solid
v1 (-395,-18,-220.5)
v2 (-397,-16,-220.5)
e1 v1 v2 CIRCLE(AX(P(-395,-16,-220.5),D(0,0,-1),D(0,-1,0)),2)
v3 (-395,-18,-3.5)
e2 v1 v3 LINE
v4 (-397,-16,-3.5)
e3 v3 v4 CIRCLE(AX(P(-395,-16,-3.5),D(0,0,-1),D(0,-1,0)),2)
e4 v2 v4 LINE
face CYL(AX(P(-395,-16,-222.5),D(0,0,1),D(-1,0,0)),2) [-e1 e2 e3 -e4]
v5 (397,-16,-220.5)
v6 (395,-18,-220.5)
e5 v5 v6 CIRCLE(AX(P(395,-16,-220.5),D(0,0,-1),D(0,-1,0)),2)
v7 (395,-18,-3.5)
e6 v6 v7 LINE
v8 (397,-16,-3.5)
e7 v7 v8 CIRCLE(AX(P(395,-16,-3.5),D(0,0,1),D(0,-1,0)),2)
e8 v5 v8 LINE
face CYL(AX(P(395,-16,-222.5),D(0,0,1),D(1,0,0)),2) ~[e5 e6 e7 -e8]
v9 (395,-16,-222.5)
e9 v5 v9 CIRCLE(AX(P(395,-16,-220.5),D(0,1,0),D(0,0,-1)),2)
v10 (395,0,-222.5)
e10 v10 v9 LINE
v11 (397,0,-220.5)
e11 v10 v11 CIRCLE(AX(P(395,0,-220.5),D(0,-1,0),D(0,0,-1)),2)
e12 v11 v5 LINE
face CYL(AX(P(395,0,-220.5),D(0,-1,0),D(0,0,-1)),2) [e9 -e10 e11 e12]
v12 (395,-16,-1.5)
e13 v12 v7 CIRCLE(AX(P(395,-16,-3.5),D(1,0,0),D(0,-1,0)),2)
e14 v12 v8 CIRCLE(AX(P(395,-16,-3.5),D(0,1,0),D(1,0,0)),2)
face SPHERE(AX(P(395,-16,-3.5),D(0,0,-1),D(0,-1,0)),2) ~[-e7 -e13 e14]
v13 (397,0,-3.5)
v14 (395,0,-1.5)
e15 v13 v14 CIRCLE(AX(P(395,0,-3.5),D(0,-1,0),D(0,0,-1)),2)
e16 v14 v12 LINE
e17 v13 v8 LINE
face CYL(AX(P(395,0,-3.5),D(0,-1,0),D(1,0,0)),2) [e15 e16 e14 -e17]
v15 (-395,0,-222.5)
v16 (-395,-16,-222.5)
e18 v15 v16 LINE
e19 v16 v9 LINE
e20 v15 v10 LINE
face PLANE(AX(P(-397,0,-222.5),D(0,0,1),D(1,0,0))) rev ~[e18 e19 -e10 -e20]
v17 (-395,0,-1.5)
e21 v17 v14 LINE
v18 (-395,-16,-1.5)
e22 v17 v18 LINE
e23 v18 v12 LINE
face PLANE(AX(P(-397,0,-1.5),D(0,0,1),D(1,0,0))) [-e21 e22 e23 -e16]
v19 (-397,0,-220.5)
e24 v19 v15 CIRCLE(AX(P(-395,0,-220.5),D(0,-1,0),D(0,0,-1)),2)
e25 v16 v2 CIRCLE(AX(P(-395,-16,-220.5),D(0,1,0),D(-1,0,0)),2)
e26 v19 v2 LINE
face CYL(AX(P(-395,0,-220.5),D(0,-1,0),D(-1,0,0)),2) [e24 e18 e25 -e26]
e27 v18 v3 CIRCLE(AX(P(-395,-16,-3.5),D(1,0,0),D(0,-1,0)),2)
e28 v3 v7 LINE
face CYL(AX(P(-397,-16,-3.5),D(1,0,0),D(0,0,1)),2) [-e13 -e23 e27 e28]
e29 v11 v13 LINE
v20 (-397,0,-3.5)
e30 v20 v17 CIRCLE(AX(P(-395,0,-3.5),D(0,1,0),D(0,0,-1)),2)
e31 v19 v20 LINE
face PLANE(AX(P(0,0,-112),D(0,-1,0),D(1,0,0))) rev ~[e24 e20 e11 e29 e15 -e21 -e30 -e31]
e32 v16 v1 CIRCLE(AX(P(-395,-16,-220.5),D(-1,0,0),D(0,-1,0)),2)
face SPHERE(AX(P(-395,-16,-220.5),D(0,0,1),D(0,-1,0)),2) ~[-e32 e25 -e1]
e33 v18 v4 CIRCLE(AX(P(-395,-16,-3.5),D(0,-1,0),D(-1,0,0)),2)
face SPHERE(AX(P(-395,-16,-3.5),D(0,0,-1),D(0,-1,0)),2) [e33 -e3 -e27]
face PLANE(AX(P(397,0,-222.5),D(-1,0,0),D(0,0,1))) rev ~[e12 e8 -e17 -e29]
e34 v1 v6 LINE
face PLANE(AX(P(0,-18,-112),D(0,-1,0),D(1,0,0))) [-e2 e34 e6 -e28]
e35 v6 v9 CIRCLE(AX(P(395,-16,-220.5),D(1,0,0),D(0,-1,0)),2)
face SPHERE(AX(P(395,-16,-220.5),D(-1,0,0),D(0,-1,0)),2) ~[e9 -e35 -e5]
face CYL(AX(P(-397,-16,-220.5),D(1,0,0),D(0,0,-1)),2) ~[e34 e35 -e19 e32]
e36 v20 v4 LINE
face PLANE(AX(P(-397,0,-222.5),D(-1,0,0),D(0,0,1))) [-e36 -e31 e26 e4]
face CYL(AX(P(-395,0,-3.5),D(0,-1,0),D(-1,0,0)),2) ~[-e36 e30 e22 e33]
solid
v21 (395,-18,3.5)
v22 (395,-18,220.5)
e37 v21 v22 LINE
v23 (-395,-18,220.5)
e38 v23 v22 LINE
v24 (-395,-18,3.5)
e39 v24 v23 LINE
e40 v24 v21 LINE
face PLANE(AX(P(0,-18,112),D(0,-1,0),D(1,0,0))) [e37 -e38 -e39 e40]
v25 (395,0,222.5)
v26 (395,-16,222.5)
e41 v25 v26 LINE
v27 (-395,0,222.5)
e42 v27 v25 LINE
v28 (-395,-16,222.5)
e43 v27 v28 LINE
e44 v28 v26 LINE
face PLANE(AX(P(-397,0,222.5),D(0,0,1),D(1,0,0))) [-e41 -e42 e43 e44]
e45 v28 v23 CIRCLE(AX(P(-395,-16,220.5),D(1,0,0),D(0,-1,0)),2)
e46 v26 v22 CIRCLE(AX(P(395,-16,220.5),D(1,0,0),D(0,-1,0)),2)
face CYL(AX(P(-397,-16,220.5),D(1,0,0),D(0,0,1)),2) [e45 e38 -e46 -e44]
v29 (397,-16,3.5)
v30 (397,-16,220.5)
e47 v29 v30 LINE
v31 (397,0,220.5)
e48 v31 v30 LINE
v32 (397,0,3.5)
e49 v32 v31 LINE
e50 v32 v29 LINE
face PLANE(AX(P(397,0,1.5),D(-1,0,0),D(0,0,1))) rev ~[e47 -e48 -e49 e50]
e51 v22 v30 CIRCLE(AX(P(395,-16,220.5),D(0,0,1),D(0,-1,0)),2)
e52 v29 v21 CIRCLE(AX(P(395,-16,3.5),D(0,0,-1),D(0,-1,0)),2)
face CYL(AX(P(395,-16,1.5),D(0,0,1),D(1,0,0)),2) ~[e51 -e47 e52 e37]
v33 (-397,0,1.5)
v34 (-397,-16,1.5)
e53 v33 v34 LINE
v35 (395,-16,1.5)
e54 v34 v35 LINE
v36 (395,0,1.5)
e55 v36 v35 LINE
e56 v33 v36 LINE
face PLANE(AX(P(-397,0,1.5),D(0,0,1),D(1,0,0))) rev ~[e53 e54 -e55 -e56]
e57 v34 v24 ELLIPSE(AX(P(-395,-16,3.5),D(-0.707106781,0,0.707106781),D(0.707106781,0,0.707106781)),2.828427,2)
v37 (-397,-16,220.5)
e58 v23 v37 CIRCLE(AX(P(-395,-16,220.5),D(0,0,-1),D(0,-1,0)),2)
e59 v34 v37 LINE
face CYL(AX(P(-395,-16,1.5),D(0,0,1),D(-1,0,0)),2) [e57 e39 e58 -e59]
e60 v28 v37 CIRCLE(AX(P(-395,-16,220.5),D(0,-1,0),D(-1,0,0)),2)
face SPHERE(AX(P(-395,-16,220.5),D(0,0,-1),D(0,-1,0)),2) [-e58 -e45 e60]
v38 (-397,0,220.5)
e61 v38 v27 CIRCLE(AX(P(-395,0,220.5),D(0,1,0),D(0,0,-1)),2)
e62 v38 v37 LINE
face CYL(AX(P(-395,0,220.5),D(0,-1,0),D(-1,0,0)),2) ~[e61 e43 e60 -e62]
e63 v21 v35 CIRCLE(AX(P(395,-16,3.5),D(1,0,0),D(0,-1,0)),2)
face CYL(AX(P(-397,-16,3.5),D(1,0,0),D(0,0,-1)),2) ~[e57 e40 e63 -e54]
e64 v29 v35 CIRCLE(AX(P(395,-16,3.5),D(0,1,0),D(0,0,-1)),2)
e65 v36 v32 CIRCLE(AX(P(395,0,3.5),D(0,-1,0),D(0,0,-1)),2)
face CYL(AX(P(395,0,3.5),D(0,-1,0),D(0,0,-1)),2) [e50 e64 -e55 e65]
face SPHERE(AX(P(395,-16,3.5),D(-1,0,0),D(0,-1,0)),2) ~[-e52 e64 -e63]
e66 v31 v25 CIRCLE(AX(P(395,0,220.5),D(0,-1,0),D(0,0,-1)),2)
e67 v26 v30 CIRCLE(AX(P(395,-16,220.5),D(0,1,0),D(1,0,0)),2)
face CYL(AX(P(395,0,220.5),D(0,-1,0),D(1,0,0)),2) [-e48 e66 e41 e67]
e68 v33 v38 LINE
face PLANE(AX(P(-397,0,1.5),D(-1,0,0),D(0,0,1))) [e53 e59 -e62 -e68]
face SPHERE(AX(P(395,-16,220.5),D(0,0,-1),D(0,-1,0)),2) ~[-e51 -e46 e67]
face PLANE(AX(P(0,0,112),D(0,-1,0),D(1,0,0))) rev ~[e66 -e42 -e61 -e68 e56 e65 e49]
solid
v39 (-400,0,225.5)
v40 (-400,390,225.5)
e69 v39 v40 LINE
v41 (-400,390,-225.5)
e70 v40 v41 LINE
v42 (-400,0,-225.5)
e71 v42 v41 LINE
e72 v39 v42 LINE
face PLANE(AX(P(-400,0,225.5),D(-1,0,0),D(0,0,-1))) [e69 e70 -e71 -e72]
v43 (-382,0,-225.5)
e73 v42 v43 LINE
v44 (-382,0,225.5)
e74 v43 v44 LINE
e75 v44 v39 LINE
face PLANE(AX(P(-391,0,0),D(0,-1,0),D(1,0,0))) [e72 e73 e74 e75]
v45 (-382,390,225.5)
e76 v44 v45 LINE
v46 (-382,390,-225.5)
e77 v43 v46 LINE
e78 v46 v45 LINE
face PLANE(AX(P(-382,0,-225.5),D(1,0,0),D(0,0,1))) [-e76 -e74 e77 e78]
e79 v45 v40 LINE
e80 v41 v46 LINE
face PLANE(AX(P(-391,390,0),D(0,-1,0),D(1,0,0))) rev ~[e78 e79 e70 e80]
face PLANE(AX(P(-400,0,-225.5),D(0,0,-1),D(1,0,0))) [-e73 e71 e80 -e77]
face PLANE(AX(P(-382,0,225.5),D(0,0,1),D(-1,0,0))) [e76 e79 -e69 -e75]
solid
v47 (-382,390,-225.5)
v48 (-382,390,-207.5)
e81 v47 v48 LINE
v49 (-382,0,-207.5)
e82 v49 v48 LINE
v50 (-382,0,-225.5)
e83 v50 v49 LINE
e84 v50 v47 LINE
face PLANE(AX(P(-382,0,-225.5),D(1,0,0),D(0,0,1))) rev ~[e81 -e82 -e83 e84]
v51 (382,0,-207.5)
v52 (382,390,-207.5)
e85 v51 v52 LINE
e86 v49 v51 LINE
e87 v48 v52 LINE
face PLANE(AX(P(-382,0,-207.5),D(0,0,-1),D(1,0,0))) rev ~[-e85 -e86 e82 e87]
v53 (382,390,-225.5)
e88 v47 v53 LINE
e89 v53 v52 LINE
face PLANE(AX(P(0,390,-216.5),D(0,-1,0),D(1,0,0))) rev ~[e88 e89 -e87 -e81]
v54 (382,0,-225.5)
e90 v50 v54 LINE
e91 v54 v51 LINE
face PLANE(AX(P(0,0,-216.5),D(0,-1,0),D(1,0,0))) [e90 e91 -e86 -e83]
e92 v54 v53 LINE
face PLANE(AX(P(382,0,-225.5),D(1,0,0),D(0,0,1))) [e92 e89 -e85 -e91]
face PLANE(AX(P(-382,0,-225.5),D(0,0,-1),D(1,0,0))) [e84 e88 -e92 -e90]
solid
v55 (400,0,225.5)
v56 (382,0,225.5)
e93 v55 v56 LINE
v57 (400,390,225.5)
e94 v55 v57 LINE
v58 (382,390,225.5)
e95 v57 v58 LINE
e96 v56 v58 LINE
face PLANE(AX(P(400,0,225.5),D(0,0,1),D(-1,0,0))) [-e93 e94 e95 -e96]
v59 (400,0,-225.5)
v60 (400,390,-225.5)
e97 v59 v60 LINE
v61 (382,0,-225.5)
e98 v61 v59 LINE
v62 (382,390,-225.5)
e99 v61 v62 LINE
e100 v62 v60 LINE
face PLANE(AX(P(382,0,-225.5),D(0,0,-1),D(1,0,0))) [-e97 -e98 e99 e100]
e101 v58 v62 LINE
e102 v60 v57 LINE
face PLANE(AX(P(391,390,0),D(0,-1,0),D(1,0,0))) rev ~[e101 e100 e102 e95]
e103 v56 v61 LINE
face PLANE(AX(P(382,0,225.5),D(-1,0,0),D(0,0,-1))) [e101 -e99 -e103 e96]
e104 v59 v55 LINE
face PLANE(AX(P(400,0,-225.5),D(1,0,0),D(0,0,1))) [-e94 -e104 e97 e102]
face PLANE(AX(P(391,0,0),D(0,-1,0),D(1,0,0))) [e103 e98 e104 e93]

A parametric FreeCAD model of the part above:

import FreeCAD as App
import Part
import Sketcher

V = App.Vector


def edges_at(feature, points):
    """Names of the edges that pass closest to the given points."""
    edges = feature.Shape.Edges
    near = lambda p: min(range(len(edges)), key=lambda i: edges[i].distToShape(Part.Vertex(*p))[0])
    return sorted({f"Edge{near(p) + 1}" for p in points})

doc = App.newDocument("Part")
body = doc.addObject("PartDesign::Body", "Body")
body.AllowCompound = True

sketch1 = body.newObject("Sketcher::SketchObject", "Sketch")
sketch1.AttachmentSupport = (doc.getObject("XZ_Plane"), [""])
sketch1.MapMode = "FlatFace"
sketch1.addGeometry([
    Part.LineSegment(V(-382, 226, 0), V(-400, 226, 0)),
    Part.LineSegment(V(-400, 226, 0), V(-400, -226, 0)),
    Part.LineSegment(V(-400, -226, 0), V(-382, -226, 0)),
    Part.LineSegment(V(-382, -226, 0), V(-382, 226, 0)),
    Part.LineSegment(V(400, -226, 0), V(400, 226, 0)),
    Part.LineSegment(V(400, 226, 0), V(382, 226, 0)),
    Part.LineSegment(V(382, 226, 0), V(382, -226, 0)),
    Part.LineSegment(V(382, -226, 0), V(400, -226, 0)),
], False)
sketch1.addConstraint([
    Sketcher.Constraint("Coincident", 0, 2, 1, 1),
    Sketcher.Constraint("Coincident", 1, 2, 2, 1),
    Sketcher.Constraint("Coincident", 2, 2, 3, 1),
    Sketcher.Constraint("Coincident", 3, 2, 0, 1),
    Sketcher.Constraint("Coincident", 4, 2, 5, 1),
    Sketcher.Constraint("Coincident", 5, 2, 6, 1),
    Sketcher.Constraint("Coincident", 6, 2, 7, 1),
    Sketcher.Constraint("Coincident", 7, 2, 4, 1),
    Sketcher.Constraint("Horizontal", 0),
    Sketcher.Constraint("Vertical", 1),
    Sketcher.Constraint("Horizontal", 2),
    Sketcher.Constraint("Vertical", 3),
    Sketcher.Constraint("Vertical", 4),
    Sketcher.Constraint("Horizontal", 5),
    Sketcher.Constraint("Vertical", 6),
    Sketcher.Constraint("Horizontal", 7),
    Sketcher.Constraint("Symmetric", 1, 2, 4, 2, -1, 1),
    Sketcher.Constraint("Symmetric", 3, 2, 6, 2, -1, 1),
    Sketcher.Constraint("Horizontal", 3, 2, 4, 2),
    Sketcher.Constraint("DistanceX", 0, 2, 0, 1, 18.0),
    Sketcher.Constraint("DistanceY", 1, 2, 1, 1, 451.0),
    Sketcher.Constraint("DistanceX", 0, 2, -1, 1, 400.0),
])
pad1 = body.newObject("PartDesign::Pad", "Pad")
pad1.Profile = sketch1
pad1.Length = 390
pad1.Reversed = True
body2 = doc.addObject("PartDesign::Body", "Body001")

sketch2 = body2.newObject("Sketcher::SketchObject", "Sketch001")
sketch2.AttachmentSupport = (doc.getObject("XZ_Plane001"), [""])
sketch2.MapMode = "FlatFace"
sketch2.addGeometry([
    Part.LineSegment(V(-382, -208, 0), V(-382, -226, 0)),
    Part.LineSegment(V(-382, -226, 0), V(382, -226, 0)),
    Part.LineSegment(V(382, -226, 0), V(382, -208, 0)),
    Part.LineSegment(V(382, -208, 0), V(-382, -208, 0)),
], False)
sketch2.addConstraint([
    Sketcher.Constraint("Coincident", 0, 2, 1, 1),
    Sketcher.Constraint("Coincident", 1, 2, 2, 1),
    Sketcher.Constraint("Coincident", 2, 2, 3, 1),
    Sketcher.Constraint("Coincident", 3, 2, 0, 1),
    Sketcher.Constraint("Vertical", 0),
    Sketcher.Constraint("Horizontal", 1),
    Sketcher.Constraint("Vertical", 2),
    Sketcher.Constraint("Horizontal", 3),
    Sketcher.Constraint("DistanceX", 1, 1, 1, 2, 764.0),
    Sketcher.Constraint("DistanceY", 0, 2, 0, 1, 18.0),
    Sketcher.Constraint("DistanceX", 0, 2, -1, 1, 382.0),
    Sketcher.Constraint("DistanceY", 0, 2, -1, 1, 225.5),
])
pad2 = body2.newObject("PartDesign::Pad", "Pad001")
pad2.Profile = sketch2
pad2.Length = 390
pad2.Reversed = True
body3 = doc.addObject("PartDesign::Body", "Body002")
body3.AllowCompound = True

sketch3 = body3.newObject("Sketcher::SketchObject", "Sketch002")
sketch3.AttachmentSupport = (doc.getObject("XZ_Plane002"), [""])
sketch3.MapMode = "FlatFace"
sketch3.addGeometry([
    Part.LineSegment(V(-397, 222, 0), V(-397, 2, 0)),
    Part.LineSegment(V(-397, 2, 0), V(397, 2, 0)),
    Part.LineSegment(V(397, 2, 0), V(397, 222, 0)),
    Part.LineSegment(V(397, 222, 0), V(-397, 222, 0)),
    Part.LineSegment(V(-397, -2, 0), V(-397, -222, 0)),
    Part.LineSegment(V(-397, -222, 0), V(397, -222, 0)),
    Part.LineSegment(V(397, -222, 0), V(397, -2, 0)),
    Part.LineSegment(V(397, -2, 0), V(-397, -2, 0)),
], False)
sketch3.addConstraint([
    Sketcher.Constraint("Coincident", 0, 2, 1, 1),
    Sketcher.Constraint("Coincident", 1, 2, 2, 1),
    Sketcher.Constraint("Coincident", 2, 2, 3, 1),
    Sketcher.Constraint("Coincident", 3, 2, 0, 1),
    Sketcher.Constraint("Coincident", 4, 2, 5, 1),
    Sketcher.Constraint("Coincident", 5, 2, 6, 1),
    Sketcher.Constraint("Coincident", 6, 2, 7, 1),
    Sketcher.Constraint("Coincident", 7, 2, 4, 1),
    Sketcher.Constraint("Vertical", 0),
    Sketcher.Constraint("Horizontal", 1),
    Sketcher.Constraint("Vertical", 2),
    Sketcher.Constraint("Horizontal", 3),
    Sketcher.Constraint("Vertical", 4),
    Sketcher.Constraint("Horizontal", 5),
    Sketcher.Constraint("Vertical", 6),
    Sketcher.Constraint("Horizontal", 7),
    Sketcher.Constraint("Symmetric", 2, 2, 4, 2, -1, 1),
    Sketcher.Constraint("Symmetric", 0, 2, 6, 2, -1, 1),
    Sketcher.Constraint("Vertical", 3, 2, 4, 2),
    Sketcher.Constraint("DistanceX", 1, 1, 1, 2, 794.0),
    Sketcher.Constraint("DistanceY", 0, 2, 0, 1, 221.0),
    Sketcher.Constraint("DistanceY", 4, 2, 0, 2, 224.0),
])
pad3 = body3.newObject("PartDesign::Pad", "Pad002")
pad3.Profile = sketch3
pad3.Length = 18
doc.recompute()

fillet = body3.newObject("PartDesign::Fillet", "Fillet")
fillet.Base = (pad3, edges_at(pad3, [
    (-397, -18, 112),
    (0, -18, 1.5),
    (397, -18, 112),
    (0, -18, 222.5),
    (-397, -18, -112),
    (0, -18, -222.5),
    (397, -18, -112),
    (0, -18, -1.5),
    (397, -9, 222.5),
    (-397, -9, 222.5),
    (397, -9, -222.5),
    (397, -9, -1.5),
    (397, -9, 1.5),
    (-397, -9, -222.5),
    (-397, -9, -1.5),
]))
fillet.Radius = 2

doc.recompute()
